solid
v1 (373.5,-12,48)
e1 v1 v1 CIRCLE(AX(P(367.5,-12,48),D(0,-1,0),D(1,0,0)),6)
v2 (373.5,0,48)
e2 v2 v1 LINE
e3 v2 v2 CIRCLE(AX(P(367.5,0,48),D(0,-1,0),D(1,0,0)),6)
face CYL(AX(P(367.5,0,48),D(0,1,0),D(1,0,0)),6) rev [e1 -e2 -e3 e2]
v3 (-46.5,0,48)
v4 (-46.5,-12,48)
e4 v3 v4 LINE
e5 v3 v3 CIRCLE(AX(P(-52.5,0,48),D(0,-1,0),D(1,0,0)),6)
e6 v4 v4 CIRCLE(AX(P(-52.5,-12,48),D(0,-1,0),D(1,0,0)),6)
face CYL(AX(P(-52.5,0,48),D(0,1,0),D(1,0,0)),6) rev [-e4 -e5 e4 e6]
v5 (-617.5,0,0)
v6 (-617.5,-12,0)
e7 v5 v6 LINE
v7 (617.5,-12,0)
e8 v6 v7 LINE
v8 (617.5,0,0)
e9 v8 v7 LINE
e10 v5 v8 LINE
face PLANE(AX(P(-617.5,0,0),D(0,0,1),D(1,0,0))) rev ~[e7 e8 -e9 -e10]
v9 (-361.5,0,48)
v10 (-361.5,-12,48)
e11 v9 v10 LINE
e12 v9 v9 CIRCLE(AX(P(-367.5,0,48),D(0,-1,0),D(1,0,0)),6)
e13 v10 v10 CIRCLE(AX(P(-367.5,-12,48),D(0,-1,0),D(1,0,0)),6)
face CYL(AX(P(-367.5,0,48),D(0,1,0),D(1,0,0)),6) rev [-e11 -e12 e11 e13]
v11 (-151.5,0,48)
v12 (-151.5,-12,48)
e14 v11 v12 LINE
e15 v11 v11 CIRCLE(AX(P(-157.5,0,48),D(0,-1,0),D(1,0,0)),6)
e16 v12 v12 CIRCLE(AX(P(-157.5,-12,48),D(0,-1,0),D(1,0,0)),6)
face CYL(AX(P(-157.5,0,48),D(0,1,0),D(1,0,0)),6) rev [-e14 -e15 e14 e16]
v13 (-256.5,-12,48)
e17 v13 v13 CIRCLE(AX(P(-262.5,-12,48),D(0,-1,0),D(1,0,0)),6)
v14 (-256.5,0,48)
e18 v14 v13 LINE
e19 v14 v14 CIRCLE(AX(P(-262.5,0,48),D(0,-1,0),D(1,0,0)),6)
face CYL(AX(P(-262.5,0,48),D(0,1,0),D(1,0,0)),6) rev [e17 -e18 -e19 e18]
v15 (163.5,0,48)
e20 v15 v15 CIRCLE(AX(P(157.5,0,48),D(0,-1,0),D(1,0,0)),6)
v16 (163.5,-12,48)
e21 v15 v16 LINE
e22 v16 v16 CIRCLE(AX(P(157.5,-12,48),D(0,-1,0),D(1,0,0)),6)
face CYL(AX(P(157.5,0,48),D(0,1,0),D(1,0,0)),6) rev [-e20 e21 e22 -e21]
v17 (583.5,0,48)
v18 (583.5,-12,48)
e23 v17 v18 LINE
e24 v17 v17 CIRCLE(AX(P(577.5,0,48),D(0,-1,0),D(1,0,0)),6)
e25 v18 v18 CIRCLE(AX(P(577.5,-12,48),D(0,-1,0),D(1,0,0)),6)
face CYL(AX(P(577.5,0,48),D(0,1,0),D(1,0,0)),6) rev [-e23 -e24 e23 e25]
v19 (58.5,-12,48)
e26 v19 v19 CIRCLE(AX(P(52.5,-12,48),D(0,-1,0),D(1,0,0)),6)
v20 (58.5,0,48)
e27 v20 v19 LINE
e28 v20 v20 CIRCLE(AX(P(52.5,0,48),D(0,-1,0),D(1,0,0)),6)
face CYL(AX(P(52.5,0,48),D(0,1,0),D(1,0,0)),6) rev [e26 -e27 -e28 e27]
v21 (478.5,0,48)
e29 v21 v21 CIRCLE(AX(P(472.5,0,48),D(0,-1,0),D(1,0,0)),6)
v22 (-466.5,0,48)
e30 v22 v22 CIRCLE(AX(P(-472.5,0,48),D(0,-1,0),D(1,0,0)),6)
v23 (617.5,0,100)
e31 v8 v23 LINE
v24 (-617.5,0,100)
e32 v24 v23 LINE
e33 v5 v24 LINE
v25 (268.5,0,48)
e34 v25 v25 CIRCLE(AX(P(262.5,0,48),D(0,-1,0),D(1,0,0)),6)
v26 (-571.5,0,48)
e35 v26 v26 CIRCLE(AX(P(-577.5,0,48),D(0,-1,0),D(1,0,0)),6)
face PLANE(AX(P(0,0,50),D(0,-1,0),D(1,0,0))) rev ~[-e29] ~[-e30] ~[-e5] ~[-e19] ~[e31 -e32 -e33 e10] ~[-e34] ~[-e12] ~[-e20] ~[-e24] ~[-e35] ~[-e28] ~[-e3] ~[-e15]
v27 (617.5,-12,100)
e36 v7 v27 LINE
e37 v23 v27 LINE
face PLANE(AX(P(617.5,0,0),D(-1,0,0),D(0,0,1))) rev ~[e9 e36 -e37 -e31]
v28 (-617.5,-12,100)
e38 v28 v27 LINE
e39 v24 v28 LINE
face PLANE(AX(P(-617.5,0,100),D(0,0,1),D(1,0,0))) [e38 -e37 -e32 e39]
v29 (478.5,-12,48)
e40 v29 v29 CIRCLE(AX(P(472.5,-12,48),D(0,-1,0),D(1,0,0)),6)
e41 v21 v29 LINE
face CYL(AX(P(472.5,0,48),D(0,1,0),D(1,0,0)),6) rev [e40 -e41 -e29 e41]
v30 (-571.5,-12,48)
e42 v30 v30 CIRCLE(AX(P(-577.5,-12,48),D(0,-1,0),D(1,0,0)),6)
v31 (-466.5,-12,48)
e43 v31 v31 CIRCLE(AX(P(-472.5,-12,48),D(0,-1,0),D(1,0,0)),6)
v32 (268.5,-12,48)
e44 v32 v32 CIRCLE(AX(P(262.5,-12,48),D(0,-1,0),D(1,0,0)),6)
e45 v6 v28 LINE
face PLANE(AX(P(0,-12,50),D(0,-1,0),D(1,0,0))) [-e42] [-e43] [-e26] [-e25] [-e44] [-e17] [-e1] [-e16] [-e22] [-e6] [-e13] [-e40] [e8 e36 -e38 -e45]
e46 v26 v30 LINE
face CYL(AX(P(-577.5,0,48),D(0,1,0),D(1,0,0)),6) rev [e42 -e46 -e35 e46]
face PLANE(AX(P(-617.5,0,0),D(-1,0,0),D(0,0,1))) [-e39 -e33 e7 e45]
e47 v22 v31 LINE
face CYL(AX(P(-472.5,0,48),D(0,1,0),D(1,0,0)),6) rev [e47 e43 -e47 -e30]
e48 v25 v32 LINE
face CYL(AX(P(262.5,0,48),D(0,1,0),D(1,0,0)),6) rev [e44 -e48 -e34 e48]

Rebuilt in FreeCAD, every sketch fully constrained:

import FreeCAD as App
import Part
import Sketcher

V = App.Vector
Q = App.Units.Quantity


def add_polygon(sketch, points):
    """Adds a closed chain of lines whose ends are joined by coincident constraints."""
    first, n = sketch.GeometryCount, len(points)
    for a, b in zip(points, points[1:] + points[:1]):
        sketch.addGeometry(Part.LineSegment(App.Vector(*a, 0), App.Vector(*b, 0)), False)
    for i in range(n):
        sketch.addConstraint(Sketcher.Constraint("Coincident", first + i, 2, first + (i + 1) % n, 1))

doc = App.newDocument("Part")
body = doc.addObject("PartDesign::Body", "Body")

sketch1 = doc.addObject("Sketcher::SketchObject", "Sketch")
body.addObject(sketch1)
sketch1.AttachmentSupport = (doc.XZ_Plane, [""])
sketch1.MapMode = "FlatFace"
add_polygon(sketch1, [(-618, 100), (-618, 0), (618, 0), (618, 100)])
sketch1.addGeometry(Part.Circle(V(-578, 48, 0), V(0, 0, 1), 6), False)
sketch1.addGeometry(Part.Circle(V(-472, 48, 0), V(0, 0, 1), 6), False)
sketch1.addGeometry(Part.Circle(V(-368, 48, 0), V(0, 0, 1), 6), False)
sketch1.addGeometry(Part.Circle(V(-262, 48, 0), V(0, 0, 1), 6), False)
sketch1.addGeometry(Part.Circle(V(-158, 48, 0), V(0, 0, 1), 6), False)
sketch1.addGeometry(Part.Circle(V(-52, 48, 0), V(0, 0, 1), 6), False)
sketch1.addGeometry(Part.Circle(V(52, 48, 0), V(0, 0, 1), 6), False)
sketch1.addGeometry(Part.Circle(V(158, 48, 0), V(0, 0, 1), 6), False)
sketch1.addGeometry(Part.Circle(V(262, 48, 0), V(0, 0, 1), 6), False)
sketch1.addGeometry(Part.Circle(V(368, 48, 0), V(0, 0, 1), 6), False)
sketch1.addGeometry(Part.Circle(V(472, 48, 0), V(0, 0, 1), 6), False)
sketch1.addGeometry(Part.Circle(V(578, 48, 0), V(0, 0, 1), 6), False)
sketch1.addConstraint(Sketcher.Constraint("Vertical", 0))
sketch1.addConstraint(Sketcher.Constraint("Horizontal", 1))
sketch1.addConstraint(Sketcher.Constraint("Vertical", 2))
sketch1.addConstraint(Sketcher.Constraint("Horizontal", 3))
sketch1.addConstraint(Sketcher.Constraint("Equal", 4, 5))
sketch1.addConstraint(Sketcher.Constraint("Equal", 5, 6))
sketch1.addConstraint(Sketcher.Constraint("Equal", 6, 7))
sketch1.addConstraint(Sketcher.Constraint("Equal", 7, 8))
sketch1.addConstraint(Sketcher.Constraint("Equal", 8, 9))
sketch1.addConstraint(Sketcher.Constraint("Equal", 9, 10))
sketch1.addConstraint(Sketcher.Constraint("Equal", 10, 11))
sketch1.addConstraint(Sketcher.Constraint("Equal", 11, 12))
sketch1.addConstraint(Sketcher.Constraint("Equal", 12, 13))
sketch1.addConstraint(Sketcher.Constraint("Equal", 13, 14))
sketch1.addConstraint(Sketcher.Constraint("Equal", 14, 15))
sketch1.addConstraint(Sketcher.Constraint("Symmetric", 0, 2, 1, 2, -1, 1))
sketch1.addConstraint(Sketcher.Constraint("Symmetric", 9, 3, 10, 3, -2))
sketch1.addConstraint(Sketcher.Constraint("Symmetric", 8, 3, 11, 3, -2))
sketch1.addConstraint(Sketcher.Constraint("Symmetric", 7, 3, 12, 3, -2))
sketch1.addConstraint(Sketcher.Constraint("Symmetric", 6, 3, 13, 3, -2))
sketch1.addConstraint(Sketcher.Constraint("Symmetric", 5, 3, 14, 3, -2))
sketch1.addConstraint(Sketcher.Constraint("Symmetric", 4, 3, 15, 3, -2))
sketch1.addConstraint(Sketcher.Constraint("Horizontal", 4, 3, 5, 3))
sketch1.addConstraint(Sketcher.Constraint("Horizontal", 5, 3, 6, 3))
sketch1.addConstraint(Sketcher.Constraint("Horizontal", 6, 3, 7, 3))
sketch1.addConstraint(Sketcher.Constraint("Horizontal", 7, 3, 8, 3))
sketch1.addConstraint(Sketcher.Constraint("Horizontal", 8, 3, 9, 3))
sketch1.addConstraint(Sketcher.Constraint("Diameter", 4, Q("12 mm")))
sketch1.addConstraint(Sketcher.Constraint("DistanceX", 1, 1, 1, 2, Q("1235 mm")))
sketch1.addConstraint(Sketcher.Constraint("DistanceY", 0, 2, 0, 1, Q("100 mm")))
sketch1.addConstraint(Sketcher.Constraint("DistanceY", -1, 1, 4, 3, Q("48 mm")))
sketch1.addConstraint(Sketcher.Constraint("DistanceX", 4, 3, 5, 3, Q("105 mm")))
sketch1.addConstraint(Sketcher.Constraint("DistanceX", 5, 3, 6, 3, Q("105 mm")))
sketch1.addConstraint(Sketcher.Constraint("DistanceX", 6, 3, 7, 3, Q("105 mm")))
sketch1.addConstraint(Sketcher.Constraint("DistanceX", 7, 3, 8, 3, Q("105 mm")))
sketch1.addConstraint(Sketcher.Constraint("DistanceX", 8, 3, 9, 3, Q("105 mm")))
sketch1.addConstraint(Sketcher.Constraint("DistanceX", 9, 3, 10, 3, Q("105 mm")))
pad1 = doc.addObject("PartDesign::Pad", "Pad")
body.addObject(pad1)
pad1.Profile = sketch1
pad1.Length = 12

doc.recompute()
